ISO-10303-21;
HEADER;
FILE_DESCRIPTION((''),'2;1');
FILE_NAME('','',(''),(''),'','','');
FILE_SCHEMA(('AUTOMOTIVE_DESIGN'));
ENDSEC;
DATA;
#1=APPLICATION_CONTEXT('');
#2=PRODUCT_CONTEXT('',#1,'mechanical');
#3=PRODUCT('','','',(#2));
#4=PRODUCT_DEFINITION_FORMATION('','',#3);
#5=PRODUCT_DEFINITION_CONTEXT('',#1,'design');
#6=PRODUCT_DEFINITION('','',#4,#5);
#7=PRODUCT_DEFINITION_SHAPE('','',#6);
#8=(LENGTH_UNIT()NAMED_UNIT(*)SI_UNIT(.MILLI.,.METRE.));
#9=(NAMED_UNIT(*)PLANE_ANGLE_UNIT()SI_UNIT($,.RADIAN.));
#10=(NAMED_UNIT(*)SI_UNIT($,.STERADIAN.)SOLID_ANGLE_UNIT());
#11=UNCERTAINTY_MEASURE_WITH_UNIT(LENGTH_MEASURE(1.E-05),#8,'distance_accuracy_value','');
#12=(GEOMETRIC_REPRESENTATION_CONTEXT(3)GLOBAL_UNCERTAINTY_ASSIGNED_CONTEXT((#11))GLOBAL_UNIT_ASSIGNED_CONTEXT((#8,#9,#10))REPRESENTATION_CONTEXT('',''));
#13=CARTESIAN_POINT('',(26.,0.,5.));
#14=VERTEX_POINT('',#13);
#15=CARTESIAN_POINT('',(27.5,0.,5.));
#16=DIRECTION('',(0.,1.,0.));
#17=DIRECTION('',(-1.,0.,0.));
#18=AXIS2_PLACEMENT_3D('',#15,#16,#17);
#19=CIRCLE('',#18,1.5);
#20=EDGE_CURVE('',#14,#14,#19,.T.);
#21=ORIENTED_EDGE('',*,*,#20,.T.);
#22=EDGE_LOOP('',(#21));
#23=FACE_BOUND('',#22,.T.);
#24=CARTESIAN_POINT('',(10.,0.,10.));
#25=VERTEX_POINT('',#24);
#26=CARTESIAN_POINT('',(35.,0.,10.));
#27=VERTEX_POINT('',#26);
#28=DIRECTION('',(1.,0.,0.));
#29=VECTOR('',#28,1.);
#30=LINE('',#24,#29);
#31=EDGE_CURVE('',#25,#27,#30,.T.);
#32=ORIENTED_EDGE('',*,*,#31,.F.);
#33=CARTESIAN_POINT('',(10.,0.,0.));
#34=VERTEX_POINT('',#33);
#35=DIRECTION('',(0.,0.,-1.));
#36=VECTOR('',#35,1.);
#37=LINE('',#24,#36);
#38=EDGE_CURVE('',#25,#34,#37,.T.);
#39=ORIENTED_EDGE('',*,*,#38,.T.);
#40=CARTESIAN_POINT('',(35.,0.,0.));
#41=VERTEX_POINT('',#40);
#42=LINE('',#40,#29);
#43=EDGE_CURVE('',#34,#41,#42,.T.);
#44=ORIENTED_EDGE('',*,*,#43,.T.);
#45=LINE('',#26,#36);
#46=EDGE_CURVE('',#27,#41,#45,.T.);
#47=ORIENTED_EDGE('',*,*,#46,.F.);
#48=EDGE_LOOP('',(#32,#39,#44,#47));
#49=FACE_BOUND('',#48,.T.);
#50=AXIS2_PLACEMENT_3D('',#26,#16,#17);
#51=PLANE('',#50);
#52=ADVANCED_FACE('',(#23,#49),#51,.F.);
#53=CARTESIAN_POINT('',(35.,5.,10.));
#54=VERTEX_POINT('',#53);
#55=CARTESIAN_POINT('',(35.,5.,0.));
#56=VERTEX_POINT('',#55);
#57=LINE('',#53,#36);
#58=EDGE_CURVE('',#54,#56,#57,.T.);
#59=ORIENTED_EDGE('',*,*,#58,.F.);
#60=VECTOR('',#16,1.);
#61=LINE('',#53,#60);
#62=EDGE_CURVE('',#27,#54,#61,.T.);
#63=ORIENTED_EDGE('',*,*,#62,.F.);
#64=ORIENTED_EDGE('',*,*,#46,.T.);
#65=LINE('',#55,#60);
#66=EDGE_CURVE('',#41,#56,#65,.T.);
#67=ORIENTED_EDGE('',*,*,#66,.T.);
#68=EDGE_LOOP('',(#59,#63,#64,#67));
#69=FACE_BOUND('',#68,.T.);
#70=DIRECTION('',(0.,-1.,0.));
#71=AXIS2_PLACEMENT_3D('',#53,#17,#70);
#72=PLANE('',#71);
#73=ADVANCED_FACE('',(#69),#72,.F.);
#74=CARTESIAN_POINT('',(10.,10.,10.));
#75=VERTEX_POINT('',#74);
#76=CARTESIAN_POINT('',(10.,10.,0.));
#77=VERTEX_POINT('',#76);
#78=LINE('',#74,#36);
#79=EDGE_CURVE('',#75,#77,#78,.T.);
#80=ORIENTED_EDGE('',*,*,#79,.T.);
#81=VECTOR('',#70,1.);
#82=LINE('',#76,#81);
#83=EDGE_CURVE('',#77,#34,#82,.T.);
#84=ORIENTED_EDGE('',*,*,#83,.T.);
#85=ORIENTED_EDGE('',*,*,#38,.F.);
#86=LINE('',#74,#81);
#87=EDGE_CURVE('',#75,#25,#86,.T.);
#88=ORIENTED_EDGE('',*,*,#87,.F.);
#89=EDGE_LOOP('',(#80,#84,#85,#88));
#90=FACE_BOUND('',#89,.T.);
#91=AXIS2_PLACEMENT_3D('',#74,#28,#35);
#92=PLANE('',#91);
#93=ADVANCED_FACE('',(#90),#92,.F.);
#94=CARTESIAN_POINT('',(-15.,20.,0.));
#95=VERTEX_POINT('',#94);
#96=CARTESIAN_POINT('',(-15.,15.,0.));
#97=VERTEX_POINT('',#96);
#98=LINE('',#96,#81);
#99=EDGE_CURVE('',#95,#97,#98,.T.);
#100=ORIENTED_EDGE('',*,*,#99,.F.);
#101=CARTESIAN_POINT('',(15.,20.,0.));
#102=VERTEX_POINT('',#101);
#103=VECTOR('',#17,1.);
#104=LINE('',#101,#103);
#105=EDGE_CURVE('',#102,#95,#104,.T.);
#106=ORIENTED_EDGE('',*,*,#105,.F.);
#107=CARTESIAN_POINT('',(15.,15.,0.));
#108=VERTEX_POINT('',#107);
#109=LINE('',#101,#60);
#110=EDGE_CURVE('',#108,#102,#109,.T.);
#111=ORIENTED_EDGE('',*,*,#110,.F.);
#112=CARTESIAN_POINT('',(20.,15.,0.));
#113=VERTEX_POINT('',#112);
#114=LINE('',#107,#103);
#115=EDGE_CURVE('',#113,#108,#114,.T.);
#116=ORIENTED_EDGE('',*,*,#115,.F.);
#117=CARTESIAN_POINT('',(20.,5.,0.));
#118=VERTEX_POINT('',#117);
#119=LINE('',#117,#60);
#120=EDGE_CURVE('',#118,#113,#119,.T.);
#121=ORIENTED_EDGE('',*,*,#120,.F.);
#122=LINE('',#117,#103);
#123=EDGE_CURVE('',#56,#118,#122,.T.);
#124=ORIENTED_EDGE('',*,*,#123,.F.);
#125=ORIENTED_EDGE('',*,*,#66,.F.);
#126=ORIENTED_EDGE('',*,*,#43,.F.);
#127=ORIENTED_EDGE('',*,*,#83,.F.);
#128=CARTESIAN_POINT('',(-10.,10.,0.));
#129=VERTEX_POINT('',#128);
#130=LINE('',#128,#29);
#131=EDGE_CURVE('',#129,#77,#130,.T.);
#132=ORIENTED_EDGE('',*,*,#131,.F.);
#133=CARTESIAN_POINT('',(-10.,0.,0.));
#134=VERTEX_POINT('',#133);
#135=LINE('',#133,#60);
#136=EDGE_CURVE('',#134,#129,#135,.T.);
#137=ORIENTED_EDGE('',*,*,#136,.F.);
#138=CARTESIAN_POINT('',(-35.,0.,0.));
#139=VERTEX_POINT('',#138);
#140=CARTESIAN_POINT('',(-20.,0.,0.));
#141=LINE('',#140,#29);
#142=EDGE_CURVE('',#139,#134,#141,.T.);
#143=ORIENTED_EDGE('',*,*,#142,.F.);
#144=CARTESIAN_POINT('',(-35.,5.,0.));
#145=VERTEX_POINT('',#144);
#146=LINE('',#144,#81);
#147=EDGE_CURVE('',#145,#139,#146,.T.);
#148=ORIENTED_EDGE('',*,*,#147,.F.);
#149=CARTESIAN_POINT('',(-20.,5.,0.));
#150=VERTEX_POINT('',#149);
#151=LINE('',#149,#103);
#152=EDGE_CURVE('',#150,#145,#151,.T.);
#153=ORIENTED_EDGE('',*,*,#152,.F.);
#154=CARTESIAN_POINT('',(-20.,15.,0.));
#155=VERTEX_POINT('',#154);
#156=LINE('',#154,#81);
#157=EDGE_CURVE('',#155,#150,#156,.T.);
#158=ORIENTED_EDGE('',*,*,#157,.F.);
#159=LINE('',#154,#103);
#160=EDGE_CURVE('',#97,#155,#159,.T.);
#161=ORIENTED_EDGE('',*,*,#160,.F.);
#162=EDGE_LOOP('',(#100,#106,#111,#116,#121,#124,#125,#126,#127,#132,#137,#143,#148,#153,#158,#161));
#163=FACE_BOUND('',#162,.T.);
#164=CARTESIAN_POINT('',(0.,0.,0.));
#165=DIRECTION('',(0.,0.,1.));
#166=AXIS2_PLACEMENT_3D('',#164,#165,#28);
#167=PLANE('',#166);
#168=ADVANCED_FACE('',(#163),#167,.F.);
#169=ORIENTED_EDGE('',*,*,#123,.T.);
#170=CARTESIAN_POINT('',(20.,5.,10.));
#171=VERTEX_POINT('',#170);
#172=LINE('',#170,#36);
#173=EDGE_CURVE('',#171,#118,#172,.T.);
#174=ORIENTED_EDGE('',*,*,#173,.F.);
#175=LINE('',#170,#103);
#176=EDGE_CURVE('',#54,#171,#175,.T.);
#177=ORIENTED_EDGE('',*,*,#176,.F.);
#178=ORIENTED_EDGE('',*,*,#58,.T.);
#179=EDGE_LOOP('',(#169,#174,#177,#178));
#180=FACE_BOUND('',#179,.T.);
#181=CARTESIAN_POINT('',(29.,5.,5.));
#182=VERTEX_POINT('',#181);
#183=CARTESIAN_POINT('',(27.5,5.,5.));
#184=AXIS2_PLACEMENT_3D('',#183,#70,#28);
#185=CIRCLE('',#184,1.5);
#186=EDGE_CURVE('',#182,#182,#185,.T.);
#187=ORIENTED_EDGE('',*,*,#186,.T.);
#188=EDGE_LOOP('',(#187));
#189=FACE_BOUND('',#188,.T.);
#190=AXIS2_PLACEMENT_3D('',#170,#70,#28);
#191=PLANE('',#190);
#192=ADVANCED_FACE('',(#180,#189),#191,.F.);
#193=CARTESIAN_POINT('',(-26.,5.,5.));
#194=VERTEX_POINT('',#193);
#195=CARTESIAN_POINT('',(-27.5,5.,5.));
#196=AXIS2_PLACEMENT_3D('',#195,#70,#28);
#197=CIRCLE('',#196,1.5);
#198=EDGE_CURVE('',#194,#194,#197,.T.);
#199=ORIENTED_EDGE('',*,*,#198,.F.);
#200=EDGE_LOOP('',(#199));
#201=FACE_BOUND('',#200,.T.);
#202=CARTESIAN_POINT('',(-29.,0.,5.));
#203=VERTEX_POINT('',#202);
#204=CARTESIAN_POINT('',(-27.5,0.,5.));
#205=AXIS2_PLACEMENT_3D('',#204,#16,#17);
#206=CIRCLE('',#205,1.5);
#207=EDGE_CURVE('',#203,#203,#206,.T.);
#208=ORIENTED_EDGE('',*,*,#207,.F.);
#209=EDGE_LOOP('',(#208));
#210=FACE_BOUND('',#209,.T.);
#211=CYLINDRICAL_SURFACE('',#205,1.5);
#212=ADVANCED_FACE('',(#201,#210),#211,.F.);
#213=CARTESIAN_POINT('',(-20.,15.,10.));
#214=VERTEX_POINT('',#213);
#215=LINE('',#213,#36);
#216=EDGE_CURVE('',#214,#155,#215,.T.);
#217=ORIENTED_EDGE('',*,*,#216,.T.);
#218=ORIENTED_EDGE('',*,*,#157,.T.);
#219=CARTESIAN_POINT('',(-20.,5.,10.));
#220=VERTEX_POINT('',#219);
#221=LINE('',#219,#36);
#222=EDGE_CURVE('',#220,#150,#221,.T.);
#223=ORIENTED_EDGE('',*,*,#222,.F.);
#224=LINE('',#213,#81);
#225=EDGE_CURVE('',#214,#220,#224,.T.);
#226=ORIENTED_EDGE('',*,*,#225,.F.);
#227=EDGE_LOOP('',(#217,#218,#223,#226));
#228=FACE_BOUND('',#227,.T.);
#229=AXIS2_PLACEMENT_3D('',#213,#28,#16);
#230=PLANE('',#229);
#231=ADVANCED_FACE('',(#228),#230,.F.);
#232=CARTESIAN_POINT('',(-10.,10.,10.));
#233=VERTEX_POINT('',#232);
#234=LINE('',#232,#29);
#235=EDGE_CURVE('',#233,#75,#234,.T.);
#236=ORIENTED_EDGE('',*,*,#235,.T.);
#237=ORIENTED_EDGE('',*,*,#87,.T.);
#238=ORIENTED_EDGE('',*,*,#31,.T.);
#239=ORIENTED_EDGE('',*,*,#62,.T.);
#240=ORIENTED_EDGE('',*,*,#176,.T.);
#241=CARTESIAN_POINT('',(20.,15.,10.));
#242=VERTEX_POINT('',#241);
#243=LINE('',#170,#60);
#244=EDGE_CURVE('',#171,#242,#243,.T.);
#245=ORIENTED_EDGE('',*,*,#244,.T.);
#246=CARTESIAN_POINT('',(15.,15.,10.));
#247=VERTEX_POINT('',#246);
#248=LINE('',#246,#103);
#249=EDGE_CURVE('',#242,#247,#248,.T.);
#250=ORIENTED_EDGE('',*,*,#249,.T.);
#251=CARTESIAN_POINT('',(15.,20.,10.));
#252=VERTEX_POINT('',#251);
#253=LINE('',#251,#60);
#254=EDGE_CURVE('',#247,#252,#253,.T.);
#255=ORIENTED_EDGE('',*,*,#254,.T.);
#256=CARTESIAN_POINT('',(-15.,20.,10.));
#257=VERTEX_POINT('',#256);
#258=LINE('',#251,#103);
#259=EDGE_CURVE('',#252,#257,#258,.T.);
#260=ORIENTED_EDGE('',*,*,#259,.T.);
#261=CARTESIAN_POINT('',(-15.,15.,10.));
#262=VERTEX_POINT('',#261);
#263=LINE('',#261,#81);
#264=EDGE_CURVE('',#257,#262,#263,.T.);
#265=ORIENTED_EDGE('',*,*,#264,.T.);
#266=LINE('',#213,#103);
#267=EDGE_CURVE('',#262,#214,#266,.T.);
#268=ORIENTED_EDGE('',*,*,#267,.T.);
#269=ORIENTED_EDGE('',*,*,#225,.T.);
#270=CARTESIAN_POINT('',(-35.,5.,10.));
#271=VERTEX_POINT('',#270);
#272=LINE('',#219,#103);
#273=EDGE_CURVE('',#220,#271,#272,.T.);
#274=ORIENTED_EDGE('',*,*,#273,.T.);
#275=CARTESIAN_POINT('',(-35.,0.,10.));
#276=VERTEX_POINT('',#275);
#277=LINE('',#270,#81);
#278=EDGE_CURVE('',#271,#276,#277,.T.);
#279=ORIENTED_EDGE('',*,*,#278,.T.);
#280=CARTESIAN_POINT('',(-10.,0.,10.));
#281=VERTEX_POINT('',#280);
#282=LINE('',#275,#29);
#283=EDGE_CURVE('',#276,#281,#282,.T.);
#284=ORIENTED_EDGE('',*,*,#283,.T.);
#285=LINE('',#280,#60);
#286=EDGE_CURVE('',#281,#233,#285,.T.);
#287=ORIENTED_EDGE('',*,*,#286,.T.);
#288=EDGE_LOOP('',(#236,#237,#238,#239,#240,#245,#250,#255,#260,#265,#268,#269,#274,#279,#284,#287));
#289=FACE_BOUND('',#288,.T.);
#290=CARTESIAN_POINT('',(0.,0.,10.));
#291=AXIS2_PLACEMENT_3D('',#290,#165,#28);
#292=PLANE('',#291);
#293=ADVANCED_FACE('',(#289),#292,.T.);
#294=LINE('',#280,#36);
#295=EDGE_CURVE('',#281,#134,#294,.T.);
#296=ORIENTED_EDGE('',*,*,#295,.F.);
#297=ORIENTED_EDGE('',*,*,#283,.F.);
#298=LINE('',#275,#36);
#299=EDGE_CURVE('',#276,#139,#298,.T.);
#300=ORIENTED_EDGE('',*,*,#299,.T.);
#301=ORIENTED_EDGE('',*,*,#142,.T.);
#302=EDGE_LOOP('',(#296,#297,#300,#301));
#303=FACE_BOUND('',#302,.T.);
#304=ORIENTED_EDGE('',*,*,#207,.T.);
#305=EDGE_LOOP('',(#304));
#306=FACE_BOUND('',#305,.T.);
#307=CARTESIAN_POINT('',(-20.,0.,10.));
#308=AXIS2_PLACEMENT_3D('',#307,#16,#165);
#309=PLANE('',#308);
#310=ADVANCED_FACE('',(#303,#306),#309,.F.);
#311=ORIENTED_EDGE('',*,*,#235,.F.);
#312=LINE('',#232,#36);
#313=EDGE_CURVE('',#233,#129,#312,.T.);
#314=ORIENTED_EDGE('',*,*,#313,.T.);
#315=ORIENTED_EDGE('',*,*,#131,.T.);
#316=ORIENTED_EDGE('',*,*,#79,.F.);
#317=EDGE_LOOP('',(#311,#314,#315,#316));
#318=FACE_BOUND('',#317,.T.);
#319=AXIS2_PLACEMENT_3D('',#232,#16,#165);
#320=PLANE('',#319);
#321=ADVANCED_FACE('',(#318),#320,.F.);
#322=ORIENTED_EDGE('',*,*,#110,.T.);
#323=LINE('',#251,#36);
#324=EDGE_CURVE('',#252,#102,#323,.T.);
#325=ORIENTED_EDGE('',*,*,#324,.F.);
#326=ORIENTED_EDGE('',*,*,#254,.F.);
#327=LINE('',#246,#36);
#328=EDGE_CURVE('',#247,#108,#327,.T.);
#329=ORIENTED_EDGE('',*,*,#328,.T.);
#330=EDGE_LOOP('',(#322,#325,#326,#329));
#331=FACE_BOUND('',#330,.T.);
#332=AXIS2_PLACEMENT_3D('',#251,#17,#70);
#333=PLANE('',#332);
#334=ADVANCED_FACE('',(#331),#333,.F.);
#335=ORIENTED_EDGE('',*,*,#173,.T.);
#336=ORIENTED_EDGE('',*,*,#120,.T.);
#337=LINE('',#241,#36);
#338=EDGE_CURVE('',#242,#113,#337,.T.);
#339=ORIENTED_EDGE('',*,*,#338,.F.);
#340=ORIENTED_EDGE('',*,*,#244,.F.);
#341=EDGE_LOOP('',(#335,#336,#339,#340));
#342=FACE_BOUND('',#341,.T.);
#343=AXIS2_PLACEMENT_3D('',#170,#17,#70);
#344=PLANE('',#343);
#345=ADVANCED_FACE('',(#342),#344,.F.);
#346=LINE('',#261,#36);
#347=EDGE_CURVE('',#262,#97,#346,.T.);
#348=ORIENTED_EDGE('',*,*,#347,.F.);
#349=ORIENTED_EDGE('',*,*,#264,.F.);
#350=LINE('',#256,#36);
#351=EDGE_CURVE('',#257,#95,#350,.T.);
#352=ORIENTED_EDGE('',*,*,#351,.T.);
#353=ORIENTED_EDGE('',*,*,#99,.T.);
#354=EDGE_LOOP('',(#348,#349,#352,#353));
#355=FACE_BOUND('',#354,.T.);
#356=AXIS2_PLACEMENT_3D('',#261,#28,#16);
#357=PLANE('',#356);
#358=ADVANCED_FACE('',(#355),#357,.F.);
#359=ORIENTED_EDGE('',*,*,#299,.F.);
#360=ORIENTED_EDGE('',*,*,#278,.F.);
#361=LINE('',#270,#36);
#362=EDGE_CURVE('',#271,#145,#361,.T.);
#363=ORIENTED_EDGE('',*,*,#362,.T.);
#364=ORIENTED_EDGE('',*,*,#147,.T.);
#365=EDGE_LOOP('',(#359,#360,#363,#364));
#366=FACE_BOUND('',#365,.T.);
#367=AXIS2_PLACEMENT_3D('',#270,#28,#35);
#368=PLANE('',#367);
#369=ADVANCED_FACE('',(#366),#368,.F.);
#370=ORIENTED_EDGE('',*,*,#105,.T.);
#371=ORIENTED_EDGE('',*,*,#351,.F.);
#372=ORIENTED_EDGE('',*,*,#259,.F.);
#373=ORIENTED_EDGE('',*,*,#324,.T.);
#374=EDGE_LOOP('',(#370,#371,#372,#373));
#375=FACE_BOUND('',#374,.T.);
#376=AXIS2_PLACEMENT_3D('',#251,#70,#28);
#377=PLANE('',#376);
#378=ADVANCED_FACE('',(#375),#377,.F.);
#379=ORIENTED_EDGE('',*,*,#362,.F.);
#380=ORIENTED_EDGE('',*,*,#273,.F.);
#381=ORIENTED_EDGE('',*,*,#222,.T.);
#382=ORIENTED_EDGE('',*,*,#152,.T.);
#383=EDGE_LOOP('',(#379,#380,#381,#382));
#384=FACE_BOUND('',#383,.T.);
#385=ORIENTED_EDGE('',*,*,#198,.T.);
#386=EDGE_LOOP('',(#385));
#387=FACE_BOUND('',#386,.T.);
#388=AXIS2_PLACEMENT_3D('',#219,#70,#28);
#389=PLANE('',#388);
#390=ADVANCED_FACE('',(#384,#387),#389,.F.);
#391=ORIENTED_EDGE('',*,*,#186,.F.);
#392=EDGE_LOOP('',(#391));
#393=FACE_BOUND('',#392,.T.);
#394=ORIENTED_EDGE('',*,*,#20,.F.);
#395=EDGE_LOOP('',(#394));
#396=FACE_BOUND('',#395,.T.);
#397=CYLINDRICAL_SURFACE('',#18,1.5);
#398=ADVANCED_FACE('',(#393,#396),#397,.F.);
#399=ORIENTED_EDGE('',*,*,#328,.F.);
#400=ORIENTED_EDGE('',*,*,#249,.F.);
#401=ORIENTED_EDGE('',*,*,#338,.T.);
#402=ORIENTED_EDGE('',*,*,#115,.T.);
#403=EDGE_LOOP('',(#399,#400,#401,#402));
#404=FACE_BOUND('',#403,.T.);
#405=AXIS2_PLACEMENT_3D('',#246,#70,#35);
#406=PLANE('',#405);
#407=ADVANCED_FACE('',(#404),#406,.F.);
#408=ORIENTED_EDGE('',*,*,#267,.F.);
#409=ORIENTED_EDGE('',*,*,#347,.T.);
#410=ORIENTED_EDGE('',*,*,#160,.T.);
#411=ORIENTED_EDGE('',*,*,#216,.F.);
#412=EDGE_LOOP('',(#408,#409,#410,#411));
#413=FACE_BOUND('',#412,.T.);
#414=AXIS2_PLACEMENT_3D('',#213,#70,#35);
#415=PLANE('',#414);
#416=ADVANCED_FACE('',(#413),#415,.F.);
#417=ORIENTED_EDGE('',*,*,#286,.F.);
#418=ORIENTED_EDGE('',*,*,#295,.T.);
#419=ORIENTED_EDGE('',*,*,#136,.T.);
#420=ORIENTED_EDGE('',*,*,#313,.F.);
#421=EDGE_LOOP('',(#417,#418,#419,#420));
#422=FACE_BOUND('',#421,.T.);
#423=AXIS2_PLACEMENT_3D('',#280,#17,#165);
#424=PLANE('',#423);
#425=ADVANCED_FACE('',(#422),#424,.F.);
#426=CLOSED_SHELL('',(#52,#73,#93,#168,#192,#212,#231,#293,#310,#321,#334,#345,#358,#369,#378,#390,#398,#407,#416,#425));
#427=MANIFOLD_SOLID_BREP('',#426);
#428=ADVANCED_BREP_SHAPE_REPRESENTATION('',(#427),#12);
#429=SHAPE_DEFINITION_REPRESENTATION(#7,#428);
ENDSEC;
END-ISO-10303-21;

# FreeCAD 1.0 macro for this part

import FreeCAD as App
import Part
import Sketcher
Q = App.Units.Quantity

doc = App.newDocument("Part")
params = doc.addObject("Spreadsheet::Sheet", "Params")
for row, (alias, value) in enumerate([
    ("sketch1_width", "20 mm"),
    ("sketch1_width2", "25 mm"),
    ("sketch1_width3", "15 mm"),
    ("sketch1_width4", "5 mm"),
    ("sketch1_height", "10 mm"),
    ("pad1_length", "10 mm"),
    ("sketch2_diameter", "3 mm"),
], start=1):
    params.set(f"A{row}", alias)
    params.set(f"B{row}", "=" + value)
    params.setAlias(f"B{row}", alias)

body = doc.addObject("PartDesign::Body", "Body")

# Sketch on XY plane
sketch1 = doc.addObject("Sketcher::SketchObject", "Sketch")
body.addObject(sketch1)
sketch1.AttachmentSupport = (doc.XY_Plane, [""])
sketch1.MapMode = "FlatFace"
sketch1.addGeometry([
    Part.LineSegment(App.Vector(-10, 0, 0), App.Vector(-10, 10, 0)),  # 0
    Part.LineSegment(App.Vector(-10, 10, 0), App.Vector(10, 10, 0)),  # 1
    Part.LineSegment(App.Vector(10, 10, 0), App.Vector(10, 0, 0)),  # 2
    Part.LineSegment(App.Vector(10, 0, 0), App.Vector(35, 0, 0)),  # 3
    Part.LineSegment(App.Vector(35, 0, 0), App.Vector(35, 5, 0)),  # 4
    Part.LineSegment(App.Vector(35, 5, 0), App.Vector(20, 5, 0)),  # 5
    Part.LineSegment(App.Vector(20, 5, 0), App.Vector(20, 15, 0)),  # 6
    Part.LineSegment(App.Vector(20, 15, 0), App.Vector(15, 15, 0)),  # 7
    Part.LineSegment(App.Vector(15, 15, 0), App.Vector(15, 20, 0)),  # 8
    Part.LineSegment(App.Vector(15, 20, 0), App.Vector(-15, 20, 0)),  # 9
    Part.LineSegment(App.Vector(-15, 20, 0), App.Vector(-15, 15, 0)),  # 10
    Part.LineSegment(App.Vector(-15, 15, 0), App.Vector(-20, 15, 0)),  # 11
    Part.LineSegment(App.Vector(-20, 15, 0), App.Vector(-20, 5, 0)),  # 12
    Part.LineSegment(App.Vector(-20, 5, 0), App.Vector(-35, 5, 0)),  # 13
    Part.LineSegment(App.Vector(-35, 5, 0), App.Vector(-35, 0, 0)),  # 14
    Part.LineSegment(App.Vector(-35, 0, 0), App.Vector(-10, 0, 0)),  # 15
], False)
sketch1.addConstraint([
    Sketcher.Constraint("Coincident", 0, 2, 1, 1),
    Sketcher.Constraint("Coincident", 1, 2, 2, 1),
    Sketcher.Constraint("Coincident", 2, 2, 3, 1),
    Sketcher.Constraint("Coincident", 3, 2, 4, 1),
    Sketcher.Constraint("Coincident", 4, 2, 5, 1),
    Sketcher.Constraint("Coincident", 5, 2, 6, 1),
    Sketcher.Constraint("Coincident", 6, 2, 7, 1),
    Sketcher.Constraint("Coincident", 7, 2, 8, 1),
    Sketcher.Constraint("Coincident", 8, 2, 9, 1),
    Sketcher.Constraint("Coincident", 9, 2, 10, 1),
    Sketcher.Constraint("Coincident", 10, 2, 11, 1),
    Sketcher.Constraint("Coincident", 11, 2, 12, 1),
    Sketcher.Constraint("Coincident", 12, 2, 13, 1),
    Sketcher.Constraint("Coincident", 13, 2, 14, 1),
    Sketcher.Constraint("Coincident", 14, 2, 15, 1),
    Sketcher.Constraint("Coincident", 15, 2, 0, 1),
    Sketcher.Constraint("Vertical", 0),
    Sketcher.Constraint("Horizontal", 1),
    Sketcher.Constraint("Vertical", 2),
    Sketcher.Constraint("Horizontal", 3),
    Sketcher.Constraint("Vertical", 4),
    Sketcher.Constraint("Horizontal", 5),
    Sketcher.Constraint("Vertical", 6),
    Sketcher.Constraint("Horizontal", 7),
    Sketcher.Constraint("Vertical", 8),
    Sketcher.Constraint("Horizontal", 9),
    Sketcher.Constraint("Vertical", 10),
    Sketcher.Constraint("Horizontal", 11),
    Sketcher.Constraint("Vertical", 12),
    Sketcher.Constraint("Horizontal", 13),
    Sketcher.Constraint("Vertical", 14),
    Sketcher.Constraint("Horizontal", 15),
    Sketcher.Constraint("Symmetric", 3, 2, 14, 2, -1, 1),
    Sketcher.Constraint("Symmetric", 7, 2, 10, 2, -2),
    Sketcher.Constraint("Symmetric", 5, 2, 12, 2, -2),
    Sketcher.Constraint("Symmetric", 2, 2, 15, 2, -2),
    Sketcher.Constraint("Equal", 11, 4),
    Sketcher.Constraint("Equal", 2, 6),
    Sketcher.Constraint("Equal", 4, 8),
    Sketcher.Constraint("DistanceX", 1, 1, 1, 2, Q("20 mm")),
    Sketcher.Constraint("DistanceX", 3, 1, 3, 2, Q("25 mm")),
    Sketcher.Constraint("DistanceX", 5, 2, 5, 1, Q("15 mm")),
    Sketcher.Constraint("DistanceX", 7, 2, 7, 1, Q("5 mm")),
    Sketcher.Constraint("DistanceY", 0, 1, 0, 2, Q("10 mm")),
])
sketch1.setExpression("Constraints[39]", "Params.sketch1_width")
sketch1.setExpression("Constraints[40]", "Params.sketch1_width2")
sketch1.setExpression("Constraints[41]", "Params.sketch1_width3")
sketch1.setExpression("Constraints[42]", "Params.sketch1_width4")
sketch1.setExpression("Constraints[43]", "Params.sketch1_height")
pad1 = doc.addObject("PartDesign::Pad", "Pad")
body.addObject(pad1)
pad1.Profile = sketch1
pad1.setExpression("Length", "Params.pad1_length")

# Sketch on XZ plane
sketch2 = doc.addObject("Sketcher::SketchObject", "Sketch001")
body.addObject(sketch2)
sketch2.AttachmentSupport = (doc.XZ_Plane, [""])
sketch2.MapMode = "FlatFace"
sketch2.AttachmentOffset = App.Placement(App.Vector(0, 0, -5), App.Rotation())
sketch2.addGeometry([
    Part.Circle(App.Vector(-27.5, 5, 0), App.Vector(0, 0, 1), 1.5),
    Part.Circle(App.Vector(27.5, 5, 0), App.Vector(0, 0, 1), 1.5),
], False)
sketch2.addConstraint([
    Sketcher.Constraint("Equal", 0, 1),
    Sketcher.Constraint("Symmetric", 0, 3, 1, 3, -2),
    Sketcher.Constraint("Diameter", 0, Q("3 mm")),
    Sketcher.Constraint("DistanceY", -1, 1, 0, 3, Q("5 mm")),
    Sketcher.Constraint("DistanceX", 0, 3, 1, 3, Q("55 mm")),
])
sketch2.setExpression("Constraints[2]", "Params.sketch2_diameter")
pocket1 = doc.addObject("PartDesign::Pocket", "Pocket")
body.addObject(pocket1)
pocket1.Profile = sketch2
pocket1.Type = "ThroughAll"
pocket1.Midplane = True

doc.recompute()
